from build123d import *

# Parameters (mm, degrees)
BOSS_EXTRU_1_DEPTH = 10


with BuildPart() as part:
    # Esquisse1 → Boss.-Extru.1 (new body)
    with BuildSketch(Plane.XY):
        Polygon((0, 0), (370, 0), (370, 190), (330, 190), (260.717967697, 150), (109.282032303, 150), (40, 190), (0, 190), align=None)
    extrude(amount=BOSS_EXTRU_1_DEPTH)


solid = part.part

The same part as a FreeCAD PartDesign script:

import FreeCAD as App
import Part
import Sketcher

V = App.Vector
Q = App.Units.Quantity

doc = App.newDocument("Part")
params = doc.addObject("Spreadsheet::Sheet", "Params")
for row, (alias, value) in enumerate([
    ("sketch1_width", "370 mm"),
    ("sketch1_width2", "40 mm"),
    ("sketch1_height", "190 mm"),
    ("sketch1_length", "80 mm"),
    ("pad1_length", "10 mm"),
], start=1):
    params.set(f"A{row}", alias)
    params.set(f"B{row}", "=" + value)
    params.setAlias(f"B{row}", alias)

body = doc.addObject("PartDesign::Body", "Body")

# Sketch on XY plane
sketch1 = body.newObject("Sketcher::SketchObject", "Sketch")
sketch1.AttachmentSupport = (doc.getObject("XY_Plane"), [""])
sketch1.MapMode = "FlatFace"
sketch1.addGeometry(Part.LineSegment(V(0, 0, 0), V(370, 0, 0)), False)
sketch1.addGeometry(Part.LineSegment(V(370, 0, 0), V(370, 190, 0)), False)
sketch1.addGeometry(Part.LineSegment(V(370, 190, 0), V(330, 190, 0)), False)
sketch1.addGeometry(Part.LineSegment(V(330, 190, 0), V(260.717968, 150, 0)), False)
sketch1.addGeometry(Part.LineSegment(V(260.717968, 150, 0), V(109.282032, 150, 0)), False)
sketch1.addGeometry(Part.LineSegment(V(109.282032, 150, 0), V(40, 190, 0)), False)
sketch1.addGeometry(Part.LineSegment(V(40, 190, 0), V(0, 190, 0)), False)
sketch1.addGeometry(Part.LineSegment(V(0, 190, 0), V(0, 0, 0)), False)
sketch1.addConstraint(Sketcher.Constraint("Coincident", 0, 2, 1, 1))
sketch1.addConstraint(Sketcher.Constraint("Coincident", 1, 2, 2, 1))
sketch1.addConstraint(Sketcher.Constraint("Coincident", 2, 2, 3, 1))
sketch1.addConstraint(Sketcher.Constraint("Coincident", 3, 2, 4, 1))
sketch1.addConstraint(Sketcher.Constraint("Coincident", 4, 2, 5, 1))
sketch1.addConstraint(Sketcher.Constraint("Coincident", 5, 2, 6, 1))
sketch1.addConstraint(Sketcher.Constraint("Coincident", 6, 2, 7, 1))
sketch1.addConstraint(Sketcher.Constraint("Coincident", 7, 2, 0, 1))
sketch1.addConstraint(Sketcher.Constraint("Horizontal", 0))
sketch1.addConstraint(Sketcher.Constraint("Vertical", 1))
sketch1.addConstraint(Sketcher.Constraint("Horizontal", 2))
sketch1.addConstraint(Sketcher.Constraint("Horizontal", 4))
sketch1.addConstraint(Sketcher.Constraint("Horizontal", 6))
sketch1.addConstraint(Sketcher.Constraint("Vertical", 7))
sketch1.addConstraint(Sketcher.Constraint("Coincident", 7, 2, -1, 1))
sketch1.addConstraint(Sketcher.Constraint("Horizontal", 2, 2, 5, 2))
sketch1.addConstraint(Sketcher.Constraint("Equal", 2, 6))
sketch1.addConstraint(Sketcher.Constraint("Equal", 3, 5))
sketch1.addConstraint(Sketcher.Constraint("DistanceX", 0, 1, 0, 2, 370.0))
sketch1.addConstraint(Sketcher.Constraint("DistanceX", 2, 2, 2, 1, 40.0))
sketch1.addConstraint(Sketcher.Constraint("DistanceY", 1, 1, 1, 2, 190.0))
sketch1.addConstraint(Sketcher.Constraint("Angle", 3, Q("-150 deg")))
sketch1.addConstraint(Sketcher.Constraint("Distance", 3, 80.0))
sketch1.setExpression("Constraints[18]", "Params.sketch1_width")
sketch1.setExpression("Constraints[19]", "Params.sketch1_width2")
sketch1.setExpression("Constraints[20]", "Params.sketch1_height")
sketch1.setExpression("Constraints[22]", "Params.sketch1_length")
pad1 = body.newObject("PartDesign::Pad", "Pad")
pad1.Profile = sketch1
pad1.setExpression("Length", "Params.pad1_length")

doc.recompute()
